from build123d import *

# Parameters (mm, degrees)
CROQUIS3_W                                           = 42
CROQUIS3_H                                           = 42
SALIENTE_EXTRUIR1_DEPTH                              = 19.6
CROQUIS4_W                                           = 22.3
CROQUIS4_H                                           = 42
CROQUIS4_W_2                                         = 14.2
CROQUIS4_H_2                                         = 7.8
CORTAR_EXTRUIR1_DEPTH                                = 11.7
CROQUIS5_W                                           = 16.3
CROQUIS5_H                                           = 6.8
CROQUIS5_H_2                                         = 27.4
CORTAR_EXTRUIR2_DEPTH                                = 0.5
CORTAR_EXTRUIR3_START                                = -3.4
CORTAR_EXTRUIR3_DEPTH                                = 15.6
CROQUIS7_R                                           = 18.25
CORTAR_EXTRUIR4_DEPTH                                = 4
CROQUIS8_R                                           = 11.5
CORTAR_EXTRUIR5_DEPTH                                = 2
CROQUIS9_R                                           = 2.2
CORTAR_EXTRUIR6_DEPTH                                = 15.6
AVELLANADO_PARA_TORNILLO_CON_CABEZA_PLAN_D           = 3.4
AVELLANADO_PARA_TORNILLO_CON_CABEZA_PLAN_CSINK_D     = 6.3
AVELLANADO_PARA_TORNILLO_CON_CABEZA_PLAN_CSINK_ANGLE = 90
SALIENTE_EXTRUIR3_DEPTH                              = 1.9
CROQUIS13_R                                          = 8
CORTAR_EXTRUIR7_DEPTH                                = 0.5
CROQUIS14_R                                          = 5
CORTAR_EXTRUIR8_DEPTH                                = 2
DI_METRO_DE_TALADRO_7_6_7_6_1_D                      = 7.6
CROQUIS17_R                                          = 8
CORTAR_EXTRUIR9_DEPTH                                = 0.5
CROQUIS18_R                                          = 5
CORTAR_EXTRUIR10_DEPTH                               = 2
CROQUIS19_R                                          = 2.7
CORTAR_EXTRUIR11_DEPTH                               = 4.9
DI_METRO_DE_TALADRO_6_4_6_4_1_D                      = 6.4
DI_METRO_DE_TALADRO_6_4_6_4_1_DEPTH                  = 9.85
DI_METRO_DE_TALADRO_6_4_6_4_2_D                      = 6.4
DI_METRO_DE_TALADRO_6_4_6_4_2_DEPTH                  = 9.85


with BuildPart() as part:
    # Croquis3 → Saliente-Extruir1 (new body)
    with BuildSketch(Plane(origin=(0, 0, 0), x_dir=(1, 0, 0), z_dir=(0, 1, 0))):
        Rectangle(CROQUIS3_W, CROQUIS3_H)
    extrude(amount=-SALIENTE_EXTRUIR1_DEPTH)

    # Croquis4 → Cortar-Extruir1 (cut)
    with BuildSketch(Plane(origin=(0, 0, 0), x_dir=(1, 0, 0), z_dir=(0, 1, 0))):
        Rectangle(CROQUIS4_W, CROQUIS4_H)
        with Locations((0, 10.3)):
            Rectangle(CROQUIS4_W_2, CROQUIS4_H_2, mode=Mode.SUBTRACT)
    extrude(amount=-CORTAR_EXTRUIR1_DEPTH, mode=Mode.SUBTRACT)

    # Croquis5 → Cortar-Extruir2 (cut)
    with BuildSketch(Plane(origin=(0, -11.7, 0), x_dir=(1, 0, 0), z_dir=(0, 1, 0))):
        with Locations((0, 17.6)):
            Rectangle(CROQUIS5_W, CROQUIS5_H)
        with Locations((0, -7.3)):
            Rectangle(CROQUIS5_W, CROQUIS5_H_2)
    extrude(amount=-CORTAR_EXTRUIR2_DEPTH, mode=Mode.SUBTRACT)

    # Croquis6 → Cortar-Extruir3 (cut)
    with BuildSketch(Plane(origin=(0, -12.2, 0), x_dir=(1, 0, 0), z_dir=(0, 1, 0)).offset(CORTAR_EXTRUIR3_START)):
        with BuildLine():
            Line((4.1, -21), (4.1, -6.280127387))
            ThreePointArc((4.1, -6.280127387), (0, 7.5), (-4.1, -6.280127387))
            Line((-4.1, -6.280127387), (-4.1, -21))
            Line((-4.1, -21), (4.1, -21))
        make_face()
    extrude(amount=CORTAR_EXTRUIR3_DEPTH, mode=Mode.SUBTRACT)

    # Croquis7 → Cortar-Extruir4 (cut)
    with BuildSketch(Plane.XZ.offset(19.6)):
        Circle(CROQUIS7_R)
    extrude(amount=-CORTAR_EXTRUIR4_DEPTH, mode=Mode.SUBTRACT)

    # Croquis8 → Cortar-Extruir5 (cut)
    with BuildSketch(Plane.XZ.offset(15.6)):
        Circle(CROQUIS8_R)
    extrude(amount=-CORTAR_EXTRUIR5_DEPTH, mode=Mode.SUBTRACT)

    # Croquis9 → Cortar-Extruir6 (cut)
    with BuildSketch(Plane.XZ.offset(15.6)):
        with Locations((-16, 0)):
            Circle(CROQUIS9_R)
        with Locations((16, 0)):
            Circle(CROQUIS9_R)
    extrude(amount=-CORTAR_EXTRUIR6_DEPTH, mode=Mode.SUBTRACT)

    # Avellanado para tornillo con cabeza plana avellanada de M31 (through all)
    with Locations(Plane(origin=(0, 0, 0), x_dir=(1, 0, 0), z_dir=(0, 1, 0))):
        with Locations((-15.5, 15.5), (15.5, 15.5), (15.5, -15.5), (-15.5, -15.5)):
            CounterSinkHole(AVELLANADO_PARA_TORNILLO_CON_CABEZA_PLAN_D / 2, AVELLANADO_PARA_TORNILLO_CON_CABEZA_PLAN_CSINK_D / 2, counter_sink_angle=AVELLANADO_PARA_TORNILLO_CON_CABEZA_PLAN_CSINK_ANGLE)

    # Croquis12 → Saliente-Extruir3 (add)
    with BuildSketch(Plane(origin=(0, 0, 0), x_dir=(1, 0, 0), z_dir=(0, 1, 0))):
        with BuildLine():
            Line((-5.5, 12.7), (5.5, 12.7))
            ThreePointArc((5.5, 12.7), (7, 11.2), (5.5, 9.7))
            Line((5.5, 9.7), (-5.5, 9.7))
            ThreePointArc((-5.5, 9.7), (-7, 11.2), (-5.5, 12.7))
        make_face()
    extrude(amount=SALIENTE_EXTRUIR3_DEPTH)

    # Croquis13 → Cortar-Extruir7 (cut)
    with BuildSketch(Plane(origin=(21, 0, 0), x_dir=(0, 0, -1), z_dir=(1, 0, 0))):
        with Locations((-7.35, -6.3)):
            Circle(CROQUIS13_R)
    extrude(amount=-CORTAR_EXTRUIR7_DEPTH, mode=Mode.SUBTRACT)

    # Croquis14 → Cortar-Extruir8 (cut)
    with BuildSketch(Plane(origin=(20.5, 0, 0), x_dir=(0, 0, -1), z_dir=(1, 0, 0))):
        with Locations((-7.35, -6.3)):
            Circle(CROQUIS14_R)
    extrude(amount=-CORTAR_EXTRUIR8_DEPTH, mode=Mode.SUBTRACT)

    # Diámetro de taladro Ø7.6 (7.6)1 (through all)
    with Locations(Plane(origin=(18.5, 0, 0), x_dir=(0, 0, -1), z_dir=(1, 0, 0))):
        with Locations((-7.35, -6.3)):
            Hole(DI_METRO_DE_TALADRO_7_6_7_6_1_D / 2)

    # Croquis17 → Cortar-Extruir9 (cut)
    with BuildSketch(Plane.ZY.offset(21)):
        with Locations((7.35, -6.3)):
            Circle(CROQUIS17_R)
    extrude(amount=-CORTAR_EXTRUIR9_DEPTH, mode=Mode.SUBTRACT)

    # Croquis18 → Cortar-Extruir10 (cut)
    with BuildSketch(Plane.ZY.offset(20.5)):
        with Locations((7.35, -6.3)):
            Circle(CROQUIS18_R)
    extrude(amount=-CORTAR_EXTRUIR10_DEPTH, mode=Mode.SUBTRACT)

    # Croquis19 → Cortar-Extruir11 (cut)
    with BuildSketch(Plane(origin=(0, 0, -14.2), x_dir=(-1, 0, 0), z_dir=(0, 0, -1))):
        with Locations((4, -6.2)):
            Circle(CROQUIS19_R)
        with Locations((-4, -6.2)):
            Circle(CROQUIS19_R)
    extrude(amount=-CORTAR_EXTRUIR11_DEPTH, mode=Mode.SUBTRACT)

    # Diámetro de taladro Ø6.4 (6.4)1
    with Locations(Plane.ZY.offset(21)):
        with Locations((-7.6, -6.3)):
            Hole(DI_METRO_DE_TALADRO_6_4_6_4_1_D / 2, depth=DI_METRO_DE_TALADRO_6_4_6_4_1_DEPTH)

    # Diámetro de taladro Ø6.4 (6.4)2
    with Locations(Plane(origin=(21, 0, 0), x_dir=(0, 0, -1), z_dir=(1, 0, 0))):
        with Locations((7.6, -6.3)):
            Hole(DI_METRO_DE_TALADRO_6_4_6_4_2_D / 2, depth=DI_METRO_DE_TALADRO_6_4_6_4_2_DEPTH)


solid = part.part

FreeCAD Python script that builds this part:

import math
import FreeCAD as App
import Part
import Sketcher
from FreeCAD import Vector


def add_polygon(sketch, points):
    """Adds a closed chain of lines whose ends are joined by coincident constraints."""
    first, n = sketch.GeometryCount, len(points)
    for a, b in zip(points, points[1:] + points[:1]):
        sketch.addGeometry(Part.LineSegment(App.Vector(*a, 0), App.Vector(*b, 0)), False)
    for i in range(n):
        sketch.addConstraint(Sketcher.Constraint("Coincident", first + i, 2, first + (i + 1) % n, 1))

doc = App.newDocument("Part")
body = doc.addObject("PartDesign::Body", "Body")

# Sketch on XZ plane
sketch1 = doc.addObject("Sketcher::SketchObject", "Sketch")
body.addObject(sketch1)
sketch1.AttachmentSupport = (doc.XZ_Plane, [""])
sketch1.MapMode = "FlatFace"
add_polygon(sketch1, [(-21, -21), (-21, 21), (21, 21), (21, -21)])  # lines 0-3
sketch1.addConstraint(Sketcher.Constraint("Vertical", 0))
sketch1.addConstraint(Sketcher.Constraint("Horizontal", 1))
sketch1.addConstraint(Sketcher.Constraint("Vertical", 2))
sketch1.addConstraint(Sketcher.Constraint("Horizontal", 3))
sketch1.addConstraint(Sketcher.Constraint("Symmetric", 0, 2, 2, 2, -1, 1))
sketch1.addConstraint(Sketcher.Constraint("Equal", 3, 0))
sketch1.addConstraint(Sketcher.Constraint("DistanceX", 1, 1, 1, 2, 42.0))
pad1 = doc.addObject("PartDesign::Pad", "Pad")
body.addObject(pad1)
pad1.Profile = sketch1
pad1.Length = 19.6

# Sketch on XZ plane
sketch2 = doc.addObject("Sketcher::SketchObject", "Sketch001")
body.addObject(sketch2)
sketch2.AttachmentSupport = (doc.XZ_Plane, [""])
sketch2.MapMode = "FlatFace"
add_polygon(sketch2, [(-11, -21), (-11, 21), (11, 21), (11, -21)])  # lines 0-3
add_polygon(sketch2, [(7, -6), (-7, -6), (-7, -14), (7, -14)])  # lines 4-7
sketch2.addConstraint(Sketcher.Constraint("Vertical", 0))
sketch2.addConstraint(Sketcher.Constraint("Horizontal", 1))
sketch2.addConstraint(Sketcher.Constraint("Vertical", 2))
sketch2.addConstraint(Sketcher.Constraint("Horizontal", 3))
sketch2.addConstraint(Sketcher.Constraint("Horizontal", 4))
sketch2.addConstraint(Sketcher.Constraint("Vertical", 5))
sketch2.addConstraint(Sketcher.Constraint("Horizontal", 6))
sketch2.addConstraint(Sketcher.Constraint("Vertical", 7))
sketch2.addConstraint(Sketcher.Constraint("Symmetric", 0, 2, 2, 2, -1, 1))
sketch2.addConstraint(Sketcher.Constraint("DistanceY", 0, 1, 0, 2, 42.0))
sketch2.addConstraint(Sketcher.Constraint("DistanceX", 1, 1, 1, 2, 22.3))
sketch2.addConstraint(Sketcher.Constraint("DistanceX", 4, 2, 4, 1, 14.2))
sketch2.addConstraint(Sketcher.Constraint("DistanceY", 5, 2, 5, 1, 7.8))
sketch2.addConstraint(Sketcher.Constraint("DistanceX", 4, 2, -1, 1, 7.1))
sketch2.addConstraint(Sketcher.Constraint("DistanceY", 4, 2, -1, 1, 6.4))
pocket1 = doc.addObject("PartDesign::Pocket", "Pocket")
body.addObject(pocket1)
pocket1.Profile = sketch2
pocket1.Length = 11.7
pocket1.Reversed = True

# Sketch on XZ plane
sketch3 = doc.addObject("Sketcher::SketchObject", "Sketch002")
body.addObject(sketch3)
sketch3.AttachmentSupport = (doc.XZ_Plane, [""])
sketch3.MapMode = "FlatFace"
sketch3.AttachmentOffset = App.Placement(Vector(0, 0, 11.7), App.Rotation())
add_polygon(sketch3, [(-8, -21), (-8, -14), (8, -14), (8, -21)])  # lines 0-3
add_polygon(sketch3, [(-8, -6), (-8, 21), (8, 21), (8, -6)])  # lines 4-7
sketch3.addConstraint(Sketcher.Constraint("Vertical", 0))
sketch3.addConstraint(Sketcher.Constraint("Horizontal", 1))
sketch3.addConstraint(Sketcher.Constraint("Vertical", 2))
sketch3.addConstraint(Sketcher.Constraint("Horizontal", 3))
sketch3.addConstraint(Sketcher.Constraint("Vertical", 4))
sketch3.addConstraint(Sketcher.Constraint("Horizontal", 5))
sketch3.addConstraint(Sketcher.Constraint("Vertical", 6))
sketch3.addConstraint(Sketcher.Constraint("Horizontal", 7))
sketch3.addConstraint(Sketcher.Constraint("Symmetric", 2, 2, 4, 2, -1, 1))
sketch3.addConstraint(Sketcher.Constraint("Vertical", 3, 2, 4, 2))
sketch3.addConstraint(Sketcher.Constraint("Vertical", 2, 2, 5, 2))
sketch3.addConstraint(Sketcher.Constraint("DistanceX", 1, 1, 1, 2, 16.3))
sketch3.addConstraint(Sketcher.Constraint("DistanceY", 0, 1, 0, 2, 6.8))
sketch3.addConstraint(Sketcher.Constraint("DistanceY", 4, 1, 4, 2, 27.4))
sketch3.addConstraint(Sketcher.Constraint("DistanceY", 2, 2, -1, 1, 21.0))
pocket2 = doc.addObject("PartDesign::Pocket", "Pocket001")
body.addObject(pocket2)
pocket2.Profile = sketch3
pocket2.Length = 0.5
pocket2.Reversed = True

# Sketch on XZ plane
sketch4 = doc.addObject("Sketcher::SketchObject", "Sketch003")
body.addObject(sketch4)
sketch4.AttachmentSupport = (doc.XZ_Plane, [""])
sketch4.MapMode = "FlatFace"
sketch4.AttachmentOffset = App.Placement(Vector(0, 0, 15.6), App.Rotation())
sketch4.addGeometry(Part.LineSegment(Vector(4, 21, 0), Vector(4, 6, 0)), False)
sketch4.addGeometry(Part.ArcOfCircle(Part.Circle(Vector(0, 0, 0), Vector(0, 0, 1), 8), math.radians(123), math.radians(417)), False)
sketch4.addGeometry(Part.LineSegment(Vector(-4, 6, 0), Vector(-4, 21, 0)), False)
sketch4.addGeometry(Part.LineSegment(Vector(-4, 21, 0), Vector(4, 21, 0)), False)
sketch4.addConstraint(Sketcher.Constraint("Coincident", 0, 2, 1, 2))
sketch4.addConstraint(Sketcher.Constraint("Coincident", 1, 1, 2, 1))
sketch4.addConstraint(Sketcher.Constraint("Coincident", 2, 2, 3, 1))
sketch4.addConstraint(Sketcher.Constraint("Coincident", 3, 2, 0, 1))
sketch4.addConstraint(Sketcher.Constraint("Vertical", 0))
sketch4.addConstraint(Sketcher.Constraint("Vertical", 2))
sketch4.addConstraint(Sketcher.Constraint("Horizontal", 3))
sketch4.addConstraint(Sketcher.Constraint("Coincident", 1, 3, -1, 1))
sketch4.addConstraint(Sketcher.Constraint("Horizontal", 0, 2, 1, 1))
sketch4.addConstraint(Sketcher.Constraint("Radius", 1, 7.5))
sketch4.addConstraint(Sketcher.Constraint("DistanceX", 3, 1, 3, 2, 8.2))
sketch4.addConstraint(Sketcher.Constraint("DistanceY", -1, 1, 2, 2, 21.0))
pocket3 = doc.addObject("PartDesign::Pocket", "Pocket002")
body.addObject(pocket3)
pocket3.Profile = sketch4
pocket3.Length = 15.6

# Sketch on XZ plane
sketch5 = doc.addObject("Sketcher::SketchObject", "Sketch004")
body.addObject(sketch5)
sketch5.AttachmentSupport = (doc.XZ_Plane, [""])
sketch5.MapMode = "FlatFace"
sketch5.AttachmentOffset = App.Placement(Vector(0, 0, 19.6), App.Rotation())
sketch5.addGeometry(Part.Circle(Vector(0, 0, 0), Vector(0, 0, 1), 18), False)
sketch5.addConstraint(Sketcher.Constraint("Coincident", 0, 3, -1, 1))
sketch5.addConstraint(Sketcher.Constraint("Diameter", 0, 36.5))
pocket4 = doc.addObject("PartDesign::Pocket", "Pocket003")
body.addObject(pocket4)
pocket4.Profile = sketch5
pocket4.Length = 4

# Sketch on XZ plane
sketch6 = doc.addObject("Sketcher::SketchObject", "Sketch005")
body.addObject(sketch6)
sketch6.AttachmentSupport = (doc.XZ_Plane, [""])
sketch6.MapMode = "FlatFace"
sketch6.AttachmentOffset = App.Placement(Vector(0, 0, 15.6), App.Rotation())
sketch6.addGeometry(Part.Circle(Vector(0, 0, 0), Vector(0, 0, 1), 12), False)
sketch6.addConstraint(Sketcher.Constraint("Coincident", 0, 3, -1, 1))
sketch6.addConstraint(Sketcher.Constraint("Diameter", 0, 23.0))
pocket5 = doc.addObject("PartDesign::Pocket", "Pocket004")
body.addObject(pocket5)
pocket5.Profile = sketch6
pocket5.Length = 2

# Sketch on XZ plane
sketch7 = doc.addObject("Sketcher::SketchObject", "Sketch006")
body.addObject(sketch7)
sketch7.AttachmentSupport = (doc.XZ_Plane, [""])
sketch7.MapMode = "FlatFace"
sketch7.AttachmentOffset = App.Placement(Vector(0, 0, 15.6), App.Rotation())
sketch7.addGeometry(Part.Circle(Vector(-16, 0, 0), Vector(0, 0, 1), 2.2), False)
sketch7.addGeometry(Part.Circle(Vector(16, 0, 0), Vector(0, 0, 1), 2.2), False)
sketch7.addConstraint(Sketcher.Constraint("Equal", 0, 1))
sketch7.addConstraint(Sketcher.Constraint("Symmetric", 0, 3, 1, 3, -1, 1))
sketch7.addConstraint(Sketcher.Constraint("PointOnObject", 0, 3, -1))
sketch7.addConstraint(Sketcher.Constraint("Diameter", 0, 4.4))
sketch7.addConstraint(Sketcher.Constraint("DistanceX", 0, 3, -1, 1, 16.0))
pocket6 = doc.addObject("PartDesign::Pocket", "Pocket005")
body.addObject(pocket6)
pocket6.Profile = sketch7
pocket6.Length = 15.6

# Sketch on XZ plane
sketch8 = doc.addObject("Sketcher::SketchObject", "Sketch007")
body.addObject(sketch8)
sketch8.AttachmentSupport = (doc.XZ_Plane, [""])
sketch8.MapMode = "FlatFace"
sketch8.addGeometry(Part.Circle(Vector(-15.5, -15.5, 0), Vector(0, 0, 1), 1.7), False)
sketch8.addGeometry(Part.Circle(Vector(15.5, -15.5, 0), Vector(0, 0, 1), 1.7), False)
sketch8.addGeometry(Part.Circle(Vector(15.5, 15.5, 0), Vector(0, 0, 1), 1.7), False)
sketch8.addGeometry(Part.Circle(Vector(-15.5, 15.5, 0), Vector(0, 0, 1), 1.7), False)
sketch8.addConstraint(Sketcher.Constraint("Equal", 0, 1))
sketch8.addConstraint(Sketcher.Constraint("Equal", 1, 2))
sketch8.addConstraint(Sketcher.Constraint("Equal", 2, 3))
sketch8.addConstraint(Sketcher.Constraint("Symmetric", 0, 3, 2, 3, -1, 1))
sketch8.addConstraint(Sketcher.Constraint("Symmetric", 1, 3, 3, 3, -1, 1))
sketch8.addConstraint(Sketcher.Constraint("Symmetric", 0, 3, 1, 3, -2))
sketch8.addConstraint(Sketcher.Constraint("Diameter", 0, 3.4))
sketch8.addConstraint(Sketcher.Constraint("DistanceX", 0, 3, 1, 3, 31.0))
sketch8.addConstraint(Sketcher.Constraint("DistanceY", 1, 3, 2, 3, 31.0))
doc.recompute()
hole = doc.addObject("PartDesign::Hole", "Hole")
body.addObject(hole)
hole.Profile = sketch8
hole.ThreadType = "None"
hole.Diameter = 3.4
hole.DepthType = "ThroughAll"
hole.HoleCutType = "Countersink"
hole.HoleCutDiameter = 6.3
hole.HoleCutCountersinkAngle = 90
hole.Reversed = True

# Sketch on XZ plane
sketch9 = doc.addObject("Sketcher::SketchObject", "Sketch008")
body.addObject(sketch9)
sketch9.AttachmentSupport = (doc.XZ_Plane, [""])
sketch9.MapMode = "FlatFace"
sketch9.addGeometry(Part.LineSegment(Vector(5.5, -12.7, 0), Vector(-5.5, -12.7, 0)), False)
sketch9.addGeometry(Part.ArcOfCircle(Part.Circle(Vector(-5.5, -11.2, 0), Vector(0, 0, 1), 1.5), math.radians(90), math.radians(270)), False)
sketch9.addGeometry(Part.LineSegment(Vector(-5.5, -9.7, 0), Vector(5.5, -9.7, 0)), False)
sketch9.addGeometry(Part.ArcOfCircle(Part.Circle(Vector(5.5, -11.2, 0), Vector(0, 0, 1), 1.5), math.radians(-90), math.radians(90)), False)
sketch9.addConstraint(Sketcher.Constraint("Tangent", 0, 2, 1, 2))
sketch9.addConstraint(Sketcher.Constraint("Tangent", 1, 1, 2, 1))
sketch9.addConstraint(Sketcher.Constraint("Tangent", 2, 2, 3, 2))
sketch9.addConstraint(Sketcher.Constraint("Tangent", 3, 1, 0, 1))
sketch9.addConstraint(Sketcher.Constraint("Horizontal", 0))
sketch9.addConstraint(Sketcher.Constraint("Horizontal", 2))
sketch9.addConstraint(Sketcher.Constraint("Radius", 1, 1.5))
sketch9.addConstraint(Sketcher.Constraint("DistanceX", 0, 2, 0, 1, 11.0))
sketch9.addConstraint(Sketcher.Constraint("DistanceX", 1, 3, -1, 1, 5.5))
sketch9.addConstraint(Sketcher.Constraint("DistanceY", 1, 3, -1, 1, 11.2))
pad2 = doc.addObject("PartDesign::Pad", "Pad001")
body.addObject(pad2)
pad2.Profile = sketch9
pad2.Length = 1.9
pad2.Reversed = True

# Sketch on YZ plane
sketch10 = doc.addObject("Sketcher::SketchObject", "Sketch009")
body.addObject(sketch10)
sketch10.AttachmentSupport = (doc.YZ_Plane, [""])
sketch10.MapMode = "FlatFace"
sketch10.AttachmentOffset = App.Placement(Vector(0, 0, 21), App.Rotation())
sketch10.addGeometry(Part.Circle(Vector(-6, 7, 0), Vector(0, 0, 1), 8), False)
sketch10.addConstraint(Sketcher.Constraint("Diameter", 0, 16.0))
sketch10.addConstraint(Sketcher.Constraint("DistanceX", 0, 3, -1, 1, 6.3))
sketch10.addConstraint(Sketcher.Constraint("DistanceY", -1, 1, 0, 3, 7.35))
pocket7 = doc.addObject("PartDesign::Pocket", "Pocket006")
body.addObject(pocket7)
pocket7.Profile = sketch10
pocket7.Length = 0.5

# Sketch on YZ plane
sketch11 = doc.addObject("Sketcher::SketchObject", "Sketch010")
body.addObject(sketch11)
sketch11.AttachmentSupport = (doc.YZ_Plane, [""])
sketch11.MapMode = "FlatFace"
sketch11.AttachmentOffset = App.Placement(Vector(0, 0, 20.5), App.Rotation())
sketch11.addGeometry(Part.Circle(Vector(-6, 7, 0), Vector(0, 0, 1), 5), False)
sketch11.addConstraint(Sketcher.Constraint("Diameter", 0, 10.0))
sketch11.addConstraint(Sketcher.Constraint("DistanceX", 0, 3, -1, 1, 6.3))
sketch11.addConstraint(Sketcher.Constraint("DistanceY", -1, 1, 0, 3, 7.35))
pocket8 = doc.addObject("PartDesign::Pocket", "Pocket007")
body.addObject(pocket8)
pocket8.Profile = sketch11
pocket8.Length = 2

# Sketch on YZ plane
sketch12 = doc.addObject("Sketcher::SketchObject", "Sketch011")
body.addObject(sketch12)
sketch12.AttachmentSupport = (doc.YZ_Plane, [""])
sketch12.MapMode = "FlatFace"
sketch12.AttachmentOffset = App.Placement(Vector(0, 0, 18.5), App.Rotation())
sketch12.addGeometry(Part.Circle(Vector(-6.3, 7.3, 0), Vector(0, 0, 1), 3.8), False)
sketch12.addConstraint(Sketcher.Constraint("Diameter", 0, 7.6))
sketch12.addConstraint(Sketcher.Constraint("DistanceX", 0, 3, -1, 1, 6.3))
sketch12.addConstraint(Sketcher.Constraint("DistanceY", -1, 1, 0, 3, 7.35))
doc.recompute()
hole2 = doc.addObject("PartDesign::Hole", "Hole001")
body.addObject(hole2)
hole2.Profile = sketch12
hole2.ThreadType = "None"
hole2.Diameter = 7.6
hole2.DepthType = "ThroughAll"

# Sketch on YZ plane
sketch13 = doc.addObject("Sketcher::SketchObject", "Sketch012")
body.addObject(sketch13)
sketch13.AttachmentSupport = (doc.YZ_Plane, [""])
sketch13.MapMode = "FlatFace"
sketch13.AttachmentOffset = App.Placement(Vector(0, 0, -21), App.Rotation())
sketch13.addGeometry(Part.Circle(Vector(-6, 7, 0), Vector(0, 0, 1), 8), False)
sketch13.addConstraint(Sketcher.Constraint("Diameter", 0, 16.0))
sketch13.addConstraint(Sketcher.Constraint("DistanceX", 0, 3, -1, 1, 6.3))
sketch13.addConstraint(Sketcher.Constraint("DistanceY", -1, 1, 0, 3, 7.35))
pocket9 = doc.addObject("PartDesign::Pocket", "Pocket008")
body.addObject(pocket9)
pocket9.Profile = sketch13
pocket9.Length = 0.5
pocket9.Reversed = True

# Sketch on YZ plane
sketch14 = doc.addObject("Sketcher::SketchObject", "Sketch013")
body.addObject(sketch14)
sketch14.AttachmentSupport = (doc.YZ_Plane, [""])
sketch14.MapMode = "FlatFace"
sketch14.AttachmentOffset = App.Placement(Vector(0, 0, -20.5), App.Rotation())
sketch14.addGeometry(Part.Circle(Vector(-6, 7, 0), Vector(0, 0, 1), 5), False)
sketch14.addConstraint(Sketcher.Constraint("Diameter", 0, 10.0))
sketch14.addConstraint(Sketcher.Constraint("DistanceX", 0, 3, -1, 1, 6.3))
sketch14.addConstraint(Sketcher.Constraint("DistanceY", -1, 1, 0, 3, 7.35))
pocket10 = doc.addObject("PartDesign::Pocket", "Pocket009")
body.addObject(pocket10)
pocket10.Profile = sketch14
pocket10.Length = 2
pocket10.Reversed = True

# Sketch on XY plane
sketch15 = doc.addObject("Sketcher::SketchObject", "Sketch014")
body.addObject(sketch15)
sketch15.AttachmentSupport = (doc.XY_Plane, [""])
sketch15.MapMode = "FlatFace"
sketch15.AttachmentOffset = App.Placement(Vector(0, 0, -14.2), App.Rotation())
sketch15.addGeometry(Part.Circle(Vector(-4, -6.2, 0), Vector(0, 0, 1), 2.7), False)
sketch15.addGeometry(Part.Circle(Vector(4, -6.2, 0), Vector(0, 0, 1), 2.7), False)
sketch15.addConstraint(Sketcher.Constraint("Equal", 0, 1))
sketch15.addConstraint(Sketcher.Constraint("Symmetric", 0, 3, 1, 3, -2))
sketch15.addConstraint(Sketcher.Constraint("Diameter", 0, 5.4))
sketch15.addConstraint(Sketcher.Constraint("DistanceX", 0, 3, -1, 1, 4.0))
sketch15.addConstraint(Sketcher.Constraint("DistanceY", 0, 3, -1, 1, 6.2))
pocket11 = doc.addObject("PartDesign::Pocket", "Pocket010")
body.addObject(pocket11)
pocket11.Profile = sketch15
pocket11.Length = 4.9
pocket11.Reversed = True

# Sketch on YZ plane
sketch16 = doc.addObject("Sketcher::SketchObject", "Sketch015")
body.addObject(sketch16)
sketch16.AttachmentSupport = (doc.YZ_Plane, [""])
sketch16.MapMode = "FlatFace"
sketch16.AttachmentOffset = App.Placement(Vector(0, 0, -21), App.Rotation())
sketch16.addGeometry(Part.Circle(Vector(-6.3, -7.6, 0), Vector(0, 0, 1), 3.2), False)
sketch16.addConstraint(Sketcher.Constraint("Diameter", 0, 6.4))
sketch16.addConstraint(Sketcher.Constraint("DistanceX", 0, 3, -1, 1, 6.3))
sketch16.addConstraint(Sketcher.Constraint("DistanceY", 0, 3, -1, 1, 7.6))
doc.recompute()
hole3 = doc.addObject("PartDesign::Hole", "Hole002")
body.addObject(hole3)
hole3.Profile = sketch16
hole3.ThreadType = "None"
hole3.Diameter = 6.4
hole3.DepthType = "Dimension"
hole3.Depth = 9.85
hole3.DrillPoint = "Flat"
hole3.Reversed = True

# Sketch on YZ plane
sketch17 = doc.addObject("Sketcher::SketchObject", "Sketch016")
body.addObject(sketch17)
sketch17.AttachmentSupport = (doc.YZ_Plane, [""])
sketch17.MapMode = "FlatFace"
sketch17.AttachmentOffset = App.Placement(Vector(0, 0, 21), App.Rotation())
sketch17.addGeometry(Part.Circle(Vector(-6.3, -7.6, 0), Vector(0, 0, 1), 3.2), False)
sketch17.addConstraint(Sketcher.Constraint("Diameter", 0, 6.4))
sketch17.addConstraint(Sketcher.Constraint("DistanceX", 0, 3, -1, 1, 6.3))
sketch17.addConstraint(Sketcher.Constraint("DistanceY", 0, 3, -1, 1, 7.6))
doc.recompute()
hole4 = doc.addObject("PartDesign::Hole", "Hole003")
body.addObject(hole4)
hole4.Profile = sketch17
hole4.ThreadType = "None"
hole4.Diameter = 6.4
hole4.DepthType = "Dimension"
hole4.Depth = 9.85
hole4.DrillPoint = "Flat"

doc.recompute()
